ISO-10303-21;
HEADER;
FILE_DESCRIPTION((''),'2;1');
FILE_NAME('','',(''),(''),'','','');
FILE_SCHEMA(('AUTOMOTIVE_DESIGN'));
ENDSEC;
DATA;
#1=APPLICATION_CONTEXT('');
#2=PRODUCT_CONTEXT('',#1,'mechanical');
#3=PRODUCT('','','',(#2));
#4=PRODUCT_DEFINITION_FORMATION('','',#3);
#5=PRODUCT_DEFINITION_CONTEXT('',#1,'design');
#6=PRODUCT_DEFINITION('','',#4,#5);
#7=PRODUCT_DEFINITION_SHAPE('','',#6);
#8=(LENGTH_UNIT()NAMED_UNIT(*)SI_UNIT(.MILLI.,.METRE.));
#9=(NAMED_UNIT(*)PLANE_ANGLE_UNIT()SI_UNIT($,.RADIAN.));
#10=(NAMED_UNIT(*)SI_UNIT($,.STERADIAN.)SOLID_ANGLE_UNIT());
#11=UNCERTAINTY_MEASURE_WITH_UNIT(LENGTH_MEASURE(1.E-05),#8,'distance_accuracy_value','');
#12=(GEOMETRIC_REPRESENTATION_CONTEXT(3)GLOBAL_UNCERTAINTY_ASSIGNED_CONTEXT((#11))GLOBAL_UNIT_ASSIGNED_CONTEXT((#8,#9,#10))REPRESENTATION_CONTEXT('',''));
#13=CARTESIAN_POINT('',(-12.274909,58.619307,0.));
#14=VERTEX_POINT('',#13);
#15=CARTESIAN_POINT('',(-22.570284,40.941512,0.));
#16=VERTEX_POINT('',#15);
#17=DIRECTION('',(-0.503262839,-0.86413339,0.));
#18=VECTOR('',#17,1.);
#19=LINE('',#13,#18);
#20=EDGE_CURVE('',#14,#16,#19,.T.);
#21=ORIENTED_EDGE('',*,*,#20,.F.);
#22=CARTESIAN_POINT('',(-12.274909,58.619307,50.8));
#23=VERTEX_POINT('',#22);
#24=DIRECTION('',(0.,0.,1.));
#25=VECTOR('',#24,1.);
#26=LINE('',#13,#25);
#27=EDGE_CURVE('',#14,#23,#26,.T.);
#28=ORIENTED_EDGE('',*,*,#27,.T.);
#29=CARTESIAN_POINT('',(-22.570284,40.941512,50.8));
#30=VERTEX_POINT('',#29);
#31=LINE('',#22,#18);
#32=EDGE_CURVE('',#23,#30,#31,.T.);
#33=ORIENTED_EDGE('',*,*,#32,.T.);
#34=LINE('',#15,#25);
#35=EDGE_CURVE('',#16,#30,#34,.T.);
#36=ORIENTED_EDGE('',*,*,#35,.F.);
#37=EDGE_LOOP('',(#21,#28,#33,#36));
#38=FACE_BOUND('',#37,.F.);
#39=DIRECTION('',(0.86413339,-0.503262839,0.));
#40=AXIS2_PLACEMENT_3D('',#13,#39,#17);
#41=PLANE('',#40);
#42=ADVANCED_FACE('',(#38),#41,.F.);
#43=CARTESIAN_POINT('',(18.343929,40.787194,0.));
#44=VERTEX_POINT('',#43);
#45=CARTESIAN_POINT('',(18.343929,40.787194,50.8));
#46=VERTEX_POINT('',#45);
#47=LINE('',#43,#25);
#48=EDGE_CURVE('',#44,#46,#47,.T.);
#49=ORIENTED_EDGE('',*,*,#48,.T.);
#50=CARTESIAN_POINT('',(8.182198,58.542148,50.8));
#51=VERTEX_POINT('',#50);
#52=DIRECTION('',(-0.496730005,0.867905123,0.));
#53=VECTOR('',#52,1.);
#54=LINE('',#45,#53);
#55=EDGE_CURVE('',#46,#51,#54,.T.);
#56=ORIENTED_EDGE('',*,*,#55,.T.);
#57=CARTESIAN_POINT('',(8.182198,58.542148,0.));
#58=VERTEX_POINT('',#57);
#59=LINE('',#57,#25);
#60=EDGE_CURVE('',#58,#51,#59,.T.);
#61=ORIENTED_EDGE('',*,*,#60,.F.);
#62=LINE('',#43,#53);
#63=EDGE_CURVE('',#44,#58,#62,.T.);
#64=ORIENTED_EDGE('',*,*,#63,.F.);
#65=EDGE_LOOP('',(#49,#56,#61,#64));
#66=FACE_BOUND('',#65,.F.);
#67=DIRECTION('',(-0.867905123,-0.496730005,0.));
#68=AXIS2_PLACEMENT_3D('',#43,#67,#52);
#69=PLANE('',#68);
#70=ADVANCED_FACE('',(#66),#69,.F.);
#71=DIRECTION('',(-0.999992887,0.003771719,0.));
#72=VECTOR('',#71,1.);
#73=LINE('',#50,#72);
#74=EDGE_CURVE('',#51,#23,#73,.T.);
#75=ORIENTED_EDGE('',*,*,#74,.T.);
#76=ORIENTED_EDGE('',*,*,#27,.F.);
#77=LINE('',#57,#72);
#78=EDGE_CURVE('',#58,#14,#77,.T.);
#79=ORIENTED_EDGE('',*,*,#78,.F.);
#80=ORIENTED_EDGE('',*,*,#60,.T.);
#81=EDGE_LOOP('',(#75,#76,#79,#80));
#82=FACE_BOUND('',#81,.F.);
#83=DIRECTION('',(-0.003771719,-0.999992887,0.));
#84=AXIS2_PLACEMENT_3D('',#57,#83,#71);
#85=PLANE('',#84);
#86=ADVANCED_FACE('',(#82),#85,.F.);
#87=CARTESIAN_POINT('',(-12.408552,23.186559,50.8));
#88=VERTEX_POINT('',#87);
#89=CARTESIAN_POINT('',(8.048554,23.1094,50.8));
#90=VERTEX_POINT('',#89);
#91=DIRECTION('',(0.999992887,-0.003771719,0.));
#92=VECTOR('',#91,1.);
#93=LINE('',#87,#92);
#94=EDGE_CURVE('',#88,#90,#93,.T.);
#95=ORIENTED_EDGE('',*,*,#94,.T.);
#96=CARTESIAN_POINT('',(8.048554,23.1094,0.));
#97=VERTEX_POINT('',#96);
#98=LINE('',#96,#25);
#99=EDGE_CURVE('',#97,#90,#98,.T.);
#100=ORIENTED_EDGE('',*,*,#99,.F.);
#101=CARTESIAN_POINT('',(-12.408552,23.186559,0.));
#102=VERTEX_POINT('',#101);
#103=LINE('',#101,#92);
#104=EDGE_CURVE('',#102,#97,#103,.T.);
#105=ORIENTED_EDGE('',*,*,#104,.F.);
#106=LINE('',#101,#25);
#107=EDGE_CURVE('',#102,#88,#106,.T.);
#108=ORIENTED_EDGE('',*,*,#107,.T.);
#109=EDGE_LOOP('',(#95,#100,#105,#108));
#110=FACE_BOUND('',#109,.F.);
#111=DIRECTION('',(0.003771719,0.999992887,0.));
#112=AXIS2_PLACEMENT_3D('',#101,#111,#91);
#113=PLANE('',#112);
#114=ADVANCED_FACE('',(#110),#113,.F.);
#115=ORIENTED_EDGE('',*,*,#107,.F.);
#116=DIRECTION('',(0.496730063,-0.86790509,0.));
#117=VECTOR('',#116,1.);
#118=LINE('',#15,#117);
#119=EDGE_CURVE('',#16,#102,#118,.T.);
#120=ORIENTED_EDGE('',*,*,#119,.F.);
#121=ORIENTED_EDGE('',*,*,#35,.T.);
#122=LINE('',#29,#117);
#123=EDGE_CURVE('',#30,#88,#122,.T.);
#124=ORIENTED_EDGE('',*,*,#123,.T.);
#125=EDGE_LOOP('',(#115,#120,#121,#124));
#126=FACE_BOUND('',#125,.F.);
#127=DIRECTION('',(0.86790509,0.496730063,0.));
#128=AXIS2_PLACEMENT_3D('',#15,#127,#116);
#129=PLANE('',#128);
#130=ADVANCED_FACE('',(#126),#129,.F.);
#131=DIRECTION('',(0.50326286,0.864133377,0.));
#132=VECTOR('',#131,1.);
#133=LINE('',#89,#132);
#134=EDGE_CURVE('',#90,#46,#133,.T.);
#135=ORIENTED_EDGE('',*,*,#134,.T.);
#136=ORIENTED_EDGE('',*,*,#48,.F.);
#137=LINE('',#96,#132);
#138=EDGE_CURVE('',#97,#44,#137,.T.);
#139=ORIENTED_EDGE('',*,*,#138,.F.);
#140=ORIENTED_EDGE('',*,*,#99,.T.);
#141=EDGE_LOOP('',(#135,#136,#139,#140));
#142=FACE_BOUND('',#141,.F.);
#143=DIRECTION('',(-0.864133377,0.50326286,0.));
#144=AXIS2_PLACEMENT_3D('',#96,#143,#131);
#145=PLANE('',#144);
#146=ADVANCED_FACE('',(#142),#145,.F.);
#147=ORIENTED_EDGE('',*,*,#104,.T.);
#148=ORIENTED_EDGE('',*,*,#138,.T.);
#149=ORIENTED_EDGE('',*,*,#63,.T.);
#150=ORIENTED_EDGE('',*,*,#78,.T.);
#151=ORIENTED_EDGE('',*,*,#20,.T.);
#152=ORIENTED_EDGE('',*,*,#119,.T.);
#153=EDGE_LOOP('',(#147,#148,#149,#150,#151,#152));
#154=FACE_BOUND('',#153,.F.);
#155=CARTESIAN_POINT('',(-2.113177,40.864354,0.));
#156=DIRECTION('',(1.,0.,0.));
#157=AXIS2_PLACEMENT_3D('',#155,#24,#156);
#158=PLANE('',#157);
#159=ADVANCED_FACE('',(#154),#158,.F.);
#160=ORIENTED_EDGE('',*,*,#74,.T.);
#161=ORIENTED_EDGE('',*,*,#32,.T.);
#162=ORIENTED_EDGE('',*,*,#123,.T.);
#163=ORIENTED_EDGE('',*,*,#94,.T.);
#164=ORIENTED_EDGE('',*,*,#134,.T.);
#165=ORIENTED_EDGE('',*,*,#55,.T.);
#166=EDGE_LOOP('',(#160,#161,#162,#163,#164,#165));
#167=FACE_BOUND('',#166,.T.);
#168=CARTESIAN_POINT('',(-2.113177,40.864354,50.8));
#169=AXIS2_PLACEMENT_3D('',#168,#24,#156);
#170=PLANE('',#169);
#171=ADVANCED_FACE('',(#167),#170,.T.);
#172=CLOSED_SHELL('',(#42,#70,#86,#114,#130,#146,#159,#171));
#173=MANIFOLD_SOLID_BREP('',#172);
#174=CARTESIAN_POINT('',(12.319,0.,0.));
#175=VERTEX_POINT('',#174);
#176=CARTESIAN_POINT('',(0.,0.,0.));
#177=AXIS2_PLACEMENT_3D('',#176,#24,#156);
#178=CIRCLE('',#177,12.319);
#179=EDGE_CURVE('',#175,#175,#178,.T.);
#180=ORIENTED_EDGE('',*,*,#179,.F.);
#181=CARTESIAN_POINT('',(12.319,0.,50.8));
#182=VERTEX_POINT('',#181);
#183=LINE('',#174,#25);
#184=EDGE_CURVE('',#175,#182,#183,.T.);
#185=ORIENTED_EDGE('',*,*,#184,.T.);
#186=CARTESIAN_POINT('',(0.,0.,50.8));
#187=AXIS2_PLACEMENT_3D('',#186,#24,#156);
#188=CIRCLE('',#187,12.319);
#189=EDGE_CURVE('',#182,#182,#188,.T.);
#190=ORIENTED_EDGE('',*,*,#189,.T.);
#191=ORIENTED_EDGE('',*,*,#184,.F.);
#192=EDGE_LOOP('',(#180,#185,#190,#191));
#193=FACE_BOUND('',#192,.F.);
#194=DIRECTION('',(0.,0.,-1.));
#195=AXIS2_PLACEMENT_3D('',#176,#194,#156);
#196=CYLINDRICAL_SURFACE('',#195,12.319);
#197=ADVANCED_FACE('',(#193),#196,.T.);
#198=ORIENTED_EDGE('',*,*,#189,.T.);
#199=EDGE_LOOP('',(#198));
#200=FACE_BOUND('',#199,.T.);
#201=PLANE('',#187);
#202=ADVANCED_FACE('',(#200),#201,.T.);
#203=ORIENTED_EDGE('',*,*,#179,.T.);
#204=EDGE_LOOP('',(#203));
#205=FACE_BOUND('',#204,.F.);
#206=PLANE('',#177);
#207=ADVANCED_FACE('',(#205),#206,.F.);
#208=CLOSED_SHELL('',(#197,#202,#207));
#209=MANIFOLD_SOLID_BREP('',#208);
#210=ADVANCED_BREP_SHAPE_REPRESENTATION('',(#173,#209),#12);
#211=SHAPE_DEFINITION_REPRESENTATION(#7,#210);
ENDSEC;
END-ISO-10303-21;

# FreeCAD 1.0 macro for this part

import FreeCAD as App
import Part
import Sketcher
Q = App.Units.Quantity


def add_polygon(sketch, points):
    """Adds a closed chain of lines whose ends are joined by coincident constraints."""
    first, n = sketch.GeometryCount, len(points)
    for a, b in zip(points, points[1:] + points[:1]):
        sketch.addGeometry(Part.LineSegment(App.Vector(*a, 0), App.Vector(*b, 0)), False)
    for i in range(n):
        sketch.addConstraint(Sketcher.Constraint("Coincident", first + i, 2, first + (i + 1) % n, 1))

doc = App.newDocument("Part")
body = doc.addObject("PartDesign::Body", "Body")

# Sketch on XY plane
sketch1 = body.newObject("Sketcher::SketchObject", "Sketch")
sketch1.AttachmentSupport = (doc.getObject("XY_Plane"), [""])
sketch1.MapMode = "FlatFace"
sketch1.addGeometry(Part.Circle(App.Vector(0, 0, 0), App.Vector(0, 0, 1), 12), False)
sketch1.addConstraint(Sketcher.Constraint("Coincident", 0, 3, -1, 1))
sketch1.addConstraint(Sketcher.Constraint("Diameter", 0, Q("0.97 in")))
pad1 = body.newObject("PartDesign::Pad", "Pad")
pad1.Profile = sketch1
pad1.Length = Q("2 in")
body2 = doc.addObject("PartDesign::Body", "Body001")

# Sketch on XY plane
sketch2 = body2.newObject("Sketcher::SketchObject", "Sketch001")
sketch2.AttachmentSupport = (doc.getObject("XY_Plane001"), [""])
sketch2.MapMode = "FlatFace"
add_polygon(sketch2, [(-23, 41), (-12, 23), (8, 23), (18, 41), (8, 59), (-12, 59)])  # lines 0-5
sketch2.addConstraint(Sketcher.Constraint("Parallel", 0, 3))
sketch2.addConstraint(Sketcher.Constraint("Parallel", 1, 4))
sketch2.addConstraint(Sketcher.Constraint("Parallel", 2, 5))
sketch2.addConstraint(Sketcher.Constraint("Equal", 0, 1))
sketch2.addConstraint(Sketcher.Constraint("Equal", 1, 2))
sketch2.addConstraint(Sketcher.Constraint("Equal", 2, 3))
sketch2.addConstraint(Sketcher.Constraint("DistanceY", -1, 1, 1, 2, 23.1094))
sketch2.addConstraint(Sketcher.Constraint("Distance", 0, 20.457252))
sketch2.addConstraint(Sketcher.Constraint("DistanceY", -1, 1, 0, 2, 23.186559))
sketch2.addConstraint(Sketcher.Constraint("DistanceX", -1, 1, 2, 2, 18.343929))
sketch2.addConstraint(Sketcher.Constraint("DistanceX", 4, 2, -1, 1, 12.274909))
sketch2.addConstraint(Sketcher.Constraint("DistanceX", 0, 2, 2, 2, 30.752481))
pad2 = body2.newObject("PartDesign::Pad", "Pad001")
pad2.Profile = sketch2
pad2.Length = Q("2 in")

doc.recompute()
